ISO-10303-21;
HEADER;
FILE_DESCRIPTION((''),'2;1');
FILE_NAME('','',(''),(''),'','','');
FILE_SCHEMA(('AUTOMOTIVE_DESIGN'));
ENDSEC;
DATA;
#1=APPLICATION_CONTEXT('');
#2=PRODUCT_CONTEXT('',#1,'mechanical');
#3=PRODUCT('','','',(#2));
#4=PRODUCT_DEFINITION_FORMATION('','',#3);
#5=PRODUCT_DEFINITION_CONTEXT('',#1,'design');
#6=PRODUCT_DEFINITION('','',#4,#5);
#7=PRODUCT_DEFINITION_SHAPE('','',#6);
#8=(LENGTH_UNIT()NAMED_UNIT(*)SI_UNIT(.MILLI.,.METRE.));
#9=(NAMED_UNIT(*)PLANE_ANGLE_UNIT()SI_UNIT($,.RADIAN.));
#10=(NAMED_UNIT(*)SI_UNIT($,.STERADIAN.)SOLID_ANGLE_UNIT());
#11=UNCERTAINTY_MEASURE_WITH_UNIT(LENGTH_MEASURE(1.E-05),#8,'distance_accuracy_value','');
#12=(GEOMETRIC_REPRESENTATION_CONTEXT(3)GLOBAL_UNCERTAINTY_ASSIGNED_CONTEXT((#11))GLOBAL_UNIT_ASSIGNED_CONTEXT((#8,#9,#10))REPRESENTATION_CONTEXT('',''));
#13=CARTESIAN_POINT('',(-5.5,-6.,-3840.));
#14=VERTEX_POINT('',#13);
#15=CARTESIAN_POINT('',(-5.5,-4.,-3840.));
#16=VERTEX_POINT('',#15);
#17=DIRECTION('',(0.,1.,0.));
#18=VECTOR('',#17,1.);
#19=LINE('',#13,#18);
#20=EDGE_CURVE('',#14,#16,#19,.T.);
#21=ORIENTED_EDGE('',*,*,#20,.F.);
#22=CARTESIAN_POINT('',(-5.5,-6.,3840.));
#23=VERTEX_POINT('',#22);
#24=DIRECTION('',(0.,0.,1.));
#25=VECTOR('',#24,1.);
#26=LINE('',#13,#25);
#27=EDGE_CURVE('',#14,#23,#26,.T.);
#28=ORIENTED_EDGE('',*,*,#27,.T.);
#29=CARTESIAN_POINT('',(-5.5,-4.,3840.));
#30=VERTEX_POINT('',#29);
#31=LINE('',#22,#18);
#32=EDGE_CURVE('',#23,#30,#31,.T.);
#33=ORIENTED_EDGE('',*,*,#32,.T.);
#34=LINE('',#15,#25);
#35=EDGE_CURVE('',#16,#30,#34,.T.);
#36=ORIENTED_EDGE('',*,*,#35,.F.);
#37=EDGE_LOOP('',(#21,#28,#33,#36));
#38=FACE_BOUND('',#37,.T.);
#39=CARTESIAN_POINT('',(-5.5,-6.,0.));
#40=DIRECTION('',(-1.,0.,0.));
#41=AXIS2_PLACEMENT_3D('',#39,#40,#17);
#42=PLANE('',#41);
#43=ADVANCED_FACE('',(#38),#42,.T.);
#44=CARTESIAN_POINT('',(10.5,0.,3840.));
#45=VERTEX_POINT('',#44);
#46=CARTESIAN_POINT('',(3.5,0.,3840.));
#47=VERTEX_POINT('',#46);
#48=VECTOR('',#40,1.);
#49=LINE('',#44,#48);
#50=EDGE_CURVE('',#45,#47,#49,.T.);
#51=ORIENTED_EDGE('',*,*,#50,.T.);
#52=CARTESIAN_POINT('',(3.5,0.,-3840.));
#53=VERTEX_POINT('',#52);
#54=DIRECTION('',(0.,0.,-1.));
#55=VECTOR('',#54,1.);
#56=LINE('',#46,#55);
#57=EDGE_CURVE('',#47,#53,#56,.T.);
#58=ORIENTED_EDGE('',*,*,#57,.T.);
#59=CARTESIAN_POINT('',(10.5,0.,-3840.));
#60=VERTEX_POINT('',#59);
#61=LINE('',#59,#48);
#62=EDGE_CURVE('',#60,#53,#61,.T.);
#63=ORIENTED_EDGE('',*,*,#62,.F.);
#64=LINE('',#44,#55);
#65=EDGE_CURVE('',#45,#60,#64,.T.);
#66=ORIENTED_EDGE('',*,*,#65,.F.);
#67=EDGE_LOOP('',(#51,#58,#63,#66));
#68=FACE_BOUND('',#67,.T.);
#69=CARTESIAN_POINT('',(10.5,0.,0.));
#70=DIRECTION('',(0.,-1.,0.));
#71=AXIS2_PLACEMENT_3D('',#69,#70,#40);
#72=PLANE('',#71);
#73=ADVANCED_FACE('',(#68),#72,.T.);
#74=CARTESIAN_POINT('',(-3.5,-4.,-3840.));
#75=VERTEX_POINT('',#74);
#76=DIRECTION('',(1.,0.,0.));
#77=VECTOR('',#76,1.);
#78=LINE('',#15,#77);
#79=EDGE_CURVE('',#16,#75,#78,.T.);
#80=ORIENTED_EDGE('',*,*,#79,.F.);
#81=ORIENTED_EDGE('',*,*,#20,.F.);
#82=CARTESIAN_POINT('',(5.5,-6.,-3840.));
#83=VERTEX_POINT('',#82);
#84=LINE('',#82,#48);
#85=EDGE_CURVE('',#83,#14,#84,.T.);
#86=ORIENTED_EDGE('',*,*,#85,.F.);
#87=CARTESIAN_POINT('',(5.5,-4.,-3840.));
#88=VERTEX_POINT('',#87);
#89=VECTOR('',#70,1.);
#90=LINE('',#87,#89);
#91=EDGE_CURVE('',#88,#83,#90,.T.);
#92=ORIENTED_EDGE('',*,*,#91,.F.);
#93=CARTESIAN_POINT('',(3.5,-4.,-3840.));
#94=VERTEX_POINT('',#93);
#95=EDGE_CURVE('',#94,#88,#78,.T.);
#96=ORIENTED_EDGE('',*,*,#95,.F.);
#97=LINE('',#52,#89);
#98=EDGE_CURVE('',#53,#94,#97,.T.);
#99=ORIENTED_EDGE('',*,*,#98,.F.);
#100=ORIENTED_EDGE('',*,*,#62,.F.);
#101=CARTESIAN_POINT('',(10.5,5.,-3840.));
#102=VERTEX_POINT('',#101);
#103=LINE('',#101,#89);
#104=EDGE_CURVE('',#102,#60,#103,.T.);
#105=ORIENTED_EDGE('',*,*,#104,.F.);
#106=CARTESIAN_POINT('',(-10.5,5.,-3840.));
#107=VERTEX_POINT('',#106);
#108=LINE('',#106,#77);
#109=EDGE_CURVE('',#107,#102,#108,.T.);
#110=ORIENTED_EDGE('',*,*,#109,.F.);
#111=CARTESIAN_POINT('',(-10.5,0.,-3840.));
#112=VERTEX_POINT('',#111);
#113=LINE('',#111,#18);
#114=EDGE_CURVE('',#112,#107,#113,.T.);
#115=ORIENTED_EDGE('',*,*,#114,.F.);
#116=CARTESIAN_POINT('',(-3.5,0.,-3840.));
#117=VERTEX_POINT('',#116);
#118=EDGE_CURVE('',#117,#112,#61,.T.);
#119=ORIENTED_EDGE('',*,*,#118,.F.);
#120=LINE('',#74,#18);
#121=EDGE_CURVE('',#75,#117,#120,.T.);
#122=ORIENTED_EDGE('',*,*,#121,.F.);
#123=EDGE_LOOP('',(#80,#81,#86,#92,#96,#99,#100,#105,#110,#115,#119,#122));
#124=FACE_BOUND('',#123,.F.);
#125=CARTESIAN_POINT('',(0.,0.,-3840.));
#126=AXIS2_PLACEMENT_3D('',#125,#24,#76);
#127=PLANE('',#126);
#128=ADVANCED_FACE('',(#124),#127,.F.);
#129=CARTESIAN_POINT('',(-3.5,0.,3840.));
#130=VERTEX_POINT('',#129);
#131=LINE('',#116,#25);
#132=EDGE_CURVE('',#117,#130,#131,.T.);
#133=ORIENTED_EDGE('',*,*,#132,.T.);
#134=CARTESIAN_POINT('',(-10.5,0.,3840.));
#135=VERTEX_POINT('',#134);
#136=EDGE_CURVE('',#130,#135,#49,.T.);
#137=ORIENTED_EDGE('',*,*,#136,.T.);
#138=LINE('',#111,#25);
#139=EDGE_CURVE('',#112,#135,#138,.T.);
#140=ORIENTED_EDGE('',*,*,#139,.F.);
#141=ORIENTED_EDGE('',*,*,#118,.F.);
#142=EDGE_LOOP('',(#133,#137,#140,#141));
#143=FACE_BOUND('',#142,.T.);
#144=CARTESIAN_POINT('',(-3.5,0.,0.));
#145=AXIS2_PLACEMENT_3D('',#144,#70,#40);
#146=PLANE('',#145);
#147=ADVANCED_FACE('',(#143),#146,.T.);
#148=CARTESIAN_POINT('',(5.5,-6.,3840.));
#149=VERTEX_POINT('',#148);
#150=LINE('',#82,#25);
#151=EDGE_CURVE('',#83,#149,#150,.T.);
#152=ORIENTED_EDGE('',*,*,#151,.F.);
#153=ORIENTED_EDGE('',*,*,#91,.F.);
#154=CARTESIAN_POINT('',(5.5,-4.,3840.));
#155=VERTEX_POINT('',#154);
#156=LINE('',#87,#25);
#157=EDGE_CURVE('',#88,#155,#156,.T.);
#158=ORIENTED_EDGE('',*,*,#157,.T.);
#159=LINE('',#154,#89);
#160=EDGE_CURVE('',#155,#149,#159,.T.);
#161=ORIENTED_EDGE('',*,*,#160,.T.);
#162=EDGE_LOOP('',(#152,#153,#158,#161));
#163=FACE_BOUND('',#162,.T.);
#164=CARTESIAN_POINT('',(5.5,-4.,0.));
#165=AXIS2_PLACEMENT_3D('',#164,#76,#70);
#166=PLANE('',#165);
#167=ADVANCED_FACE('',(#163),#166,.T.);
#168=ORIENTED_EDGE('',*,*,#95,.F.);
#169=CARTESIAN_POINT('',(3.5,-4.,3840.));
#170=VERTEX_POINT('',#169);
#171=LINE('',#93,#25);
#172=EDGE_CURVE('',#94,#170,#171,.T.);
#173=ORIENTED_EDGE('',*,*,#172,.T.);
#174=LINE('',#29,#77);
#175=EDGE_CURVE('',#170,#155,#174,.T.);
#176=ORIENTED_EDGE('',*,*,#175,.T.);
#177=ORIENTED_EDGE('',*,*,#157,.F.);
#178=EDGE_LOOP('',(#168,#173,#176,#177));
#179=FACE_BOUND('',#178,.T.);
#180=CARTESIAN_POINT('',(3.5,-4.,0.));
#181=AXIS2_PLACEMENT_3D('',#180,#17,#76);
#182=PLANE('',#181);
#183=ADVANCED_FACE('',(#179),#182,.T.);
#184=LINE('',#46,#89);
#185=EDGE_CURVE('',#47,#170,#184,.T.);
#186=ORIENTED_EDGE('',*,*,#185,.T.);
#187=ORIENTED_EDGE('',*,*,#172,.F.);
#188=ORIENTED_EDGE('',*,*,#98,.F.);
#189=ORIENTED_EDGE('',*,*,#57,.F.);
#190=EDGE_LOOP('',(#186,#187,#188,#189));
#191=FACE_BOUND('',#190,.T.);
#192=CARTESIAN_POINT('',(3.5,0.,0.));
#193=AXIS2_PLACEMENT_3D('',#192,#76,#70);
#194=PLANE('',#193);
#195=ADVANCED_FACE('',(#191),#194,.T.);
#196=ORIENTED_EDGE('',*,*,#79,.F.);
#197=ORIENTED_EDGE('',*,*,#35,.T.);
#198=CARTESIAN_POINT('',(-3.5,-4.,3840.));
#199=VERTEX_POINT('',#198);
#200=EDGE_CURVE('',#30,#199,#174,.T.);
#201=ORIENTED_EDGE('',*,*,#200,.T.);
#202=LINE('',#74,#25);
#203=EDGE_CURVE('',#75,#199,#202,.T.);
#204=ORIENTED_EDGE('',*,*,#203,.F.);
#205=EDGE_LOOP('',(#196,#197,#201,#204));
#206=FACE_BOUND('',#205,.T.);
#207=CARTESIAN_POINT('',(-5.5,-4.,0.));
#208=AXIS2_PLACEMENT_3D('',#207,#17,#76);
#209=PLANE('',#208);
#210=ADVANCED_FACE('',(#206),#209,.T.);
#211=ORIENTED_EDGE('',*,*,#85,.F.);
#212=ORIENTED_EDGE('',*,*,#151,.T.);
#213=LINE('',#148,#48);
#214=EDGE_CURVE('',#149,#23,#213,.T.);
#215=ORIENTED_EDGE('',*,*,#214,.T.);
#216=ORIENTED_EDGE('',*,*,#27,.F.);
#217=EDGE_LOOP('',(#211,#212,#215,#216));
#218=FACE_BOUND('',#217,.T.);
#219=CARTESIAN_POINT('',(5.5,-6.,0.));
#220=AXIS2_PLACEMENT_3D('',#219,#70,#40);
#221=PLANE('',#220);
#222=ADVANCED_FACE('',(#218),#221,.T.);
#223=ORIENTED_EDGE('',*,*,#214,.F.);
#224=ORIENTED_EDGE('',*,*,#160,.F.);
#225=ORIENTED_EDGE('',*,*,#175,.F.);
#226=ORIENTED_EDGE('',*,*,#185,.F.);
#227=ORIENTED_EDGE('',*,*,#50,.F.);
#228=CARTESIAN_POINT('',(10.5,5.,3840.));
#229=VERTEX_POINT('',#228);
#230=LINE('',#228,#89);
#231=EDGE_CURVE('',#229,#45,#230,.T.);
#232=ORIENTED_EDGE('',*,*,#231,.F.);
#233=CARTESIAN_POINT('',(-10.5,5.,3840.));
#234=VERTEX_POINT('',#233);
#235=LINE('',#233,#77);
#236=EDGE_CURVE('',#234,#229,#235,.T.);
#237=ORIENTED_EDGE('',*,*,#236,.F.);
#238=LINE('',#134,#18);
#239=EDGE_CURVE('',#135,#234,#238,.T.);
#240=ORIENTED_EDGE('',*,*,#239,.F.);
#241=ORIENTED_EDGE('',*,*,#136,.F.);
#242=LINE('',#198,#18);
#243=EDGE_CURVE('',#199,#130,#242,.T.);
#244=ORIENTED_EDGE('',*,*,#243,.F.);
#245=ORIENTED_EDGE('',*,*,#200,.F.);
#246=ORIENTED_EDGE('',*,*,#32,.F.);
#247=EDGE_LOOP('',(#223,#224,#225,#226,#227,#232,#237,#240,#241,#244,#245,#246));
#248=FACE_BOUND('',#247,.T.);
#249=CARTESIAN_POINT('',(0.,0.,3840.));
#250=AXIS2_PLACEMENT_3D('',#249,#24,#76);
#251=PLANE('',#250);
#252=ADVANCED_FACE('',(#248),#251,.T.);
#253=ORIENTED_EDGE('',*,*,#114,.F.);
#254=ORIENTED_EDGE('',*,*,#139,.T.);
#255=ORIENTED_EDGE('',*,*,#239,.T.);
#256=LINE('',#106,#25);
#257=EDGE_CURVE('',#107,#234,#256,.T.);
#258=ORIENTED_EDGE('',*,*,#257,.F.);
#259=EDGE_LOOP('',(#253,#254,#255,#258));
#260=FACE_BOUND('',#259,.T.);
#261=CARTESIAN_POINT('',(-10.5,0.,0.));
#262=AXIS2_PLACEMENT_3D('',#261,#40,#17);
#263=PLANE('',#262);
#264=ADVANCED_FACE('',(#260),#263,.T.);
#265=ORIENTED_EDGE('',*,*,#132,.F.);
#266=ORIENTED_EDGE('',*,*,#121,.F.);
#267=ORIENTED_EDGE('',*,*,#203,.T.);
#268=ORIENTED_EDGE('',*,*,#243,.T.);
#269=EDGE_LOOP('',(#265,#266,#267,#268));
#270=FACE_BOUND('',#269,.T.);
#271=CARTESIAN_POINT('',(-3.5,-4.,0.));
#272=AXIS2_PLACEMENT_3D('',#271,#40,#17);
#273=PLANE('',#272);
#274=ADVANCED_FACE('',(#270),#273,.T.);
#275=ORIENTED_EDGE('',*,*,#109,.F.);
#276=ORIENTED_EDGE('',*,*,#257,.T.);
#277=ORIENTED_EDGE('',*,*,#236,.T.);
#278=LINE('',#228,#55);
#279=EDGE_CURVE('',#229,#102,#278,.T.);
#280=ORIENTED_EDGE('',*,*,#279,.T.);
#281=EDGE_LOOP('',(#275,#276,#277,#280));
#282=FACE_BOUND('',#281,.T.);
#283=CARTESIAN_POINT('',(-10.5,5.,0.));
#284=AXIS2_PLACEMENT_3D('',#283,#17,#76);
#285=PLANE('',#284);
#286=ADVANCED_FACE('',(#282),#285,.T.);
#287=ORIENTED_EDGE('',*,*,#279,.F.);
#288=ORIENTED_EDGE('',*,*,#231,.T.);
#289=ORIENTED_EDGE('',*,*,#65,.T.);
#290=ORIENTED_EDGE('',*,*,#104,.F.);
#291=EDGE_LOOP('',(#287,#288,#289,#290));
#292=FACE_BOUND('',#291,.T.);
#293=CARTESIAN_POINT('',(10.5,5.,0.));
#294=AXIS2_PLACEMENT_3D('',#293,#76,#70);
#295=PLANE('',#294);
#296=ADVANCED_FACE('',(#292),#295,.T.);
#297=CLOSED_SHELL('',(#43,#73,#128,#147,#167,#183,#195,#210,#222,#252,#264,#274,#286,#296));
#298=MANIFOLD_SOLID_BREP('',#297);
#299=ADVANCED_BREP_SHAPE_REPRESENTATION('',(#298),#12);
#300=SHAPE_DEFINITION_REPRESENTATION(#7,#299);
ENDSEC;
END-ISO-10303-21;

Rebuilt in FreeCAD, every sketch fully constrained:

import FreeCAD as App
import Part
import Sketcher
Q = App.Units.Quantity


def add_polygon(sketch, points):
    """Adds a closed chain of lines whose ends are joined by coincident constraints."""
    first, n = sketch.GeometryCount, len(points)
    for a, b in zip(points, points[1:] + points[:1]):
        sketch.addGeometry(Part.LineSegment(App.Vector(*a, 0), App.Vector(*b, 0)), False)
    for i in range(n):
        sketch.addConstraint(Sketcher.Constraint("Coincident", first + i, 2, first + (i + 1) % n, 1))

doc = App.newDocument("Part")
body = doc.addObject("PartDesign::Body", "Body")

sketch1 = body.newObject("Sketcher::SketchObject", "Sketch")
sketch1.AttachmentSupport = (doc.getObject("XY_Plane"), [""])
sketch1.MapMode = "FlatFace"
add_polygon(sketch1, [(10.5, 5), (-10.5, 5), (-10.5, 0), (-3.5, 0), (-3.5, -4), (-5.5, -4), (-5.5, -6), (5.5, -6), (5.5, -4), (3.5, -4), (3.5, 0), (10.5, 0)])
sketch1.addConstraint([
    Sketcher.Constraint("Horizontal", 0),
    Sketcher.Constraint("Vertical", 1),
    Sketcher.Constraint("Horizontal", 2),
    Sketcher.Constraint("Vertical", 3),
    Sketcher.Constraint("Horizontal", 4),
    Sketcher.Constraint("Vertical", 5),
    Sketcher.Constraint("Horizontal", 6),
    Sketcher.Constraint("Vertical", 7),
    Sketcher.Constraint("Horizontal", 8),
    Sketcher.Constraint("Vertical", 9),
    Sketcher.Constraint("Horizontal", 10),
    Sketcher.Constraint("Vertical", 11),
    Sketcher.Constraint("Symmetric", 2, 2, 9, 2, -1, 1),
    Sketcher.Constraint("Symmetric", 4, 2, 7, 2, -2),
    Sketcher.Constraint("Symmetric", 1, 2, 10, 2, -2),
    Sketcher.Constraint("Equal", 8, 5),
    Sketcher.Constraint("DistanceX", 0, 2, 0, 1, Q("21 mm")),
    Sketcher.Constraint("DistanceX", 2, 1, 2, 2, Q("7 mm")),
    Sketcher.Constraint("DistanceX", 4, 2, 4, 1, Q("2 mm")),
    Sketcher.Constraint("DistanceY", 1, 2, 1, 1, Q("5 mm")),
    Sketcher.Constraint("DistanceY", 3, 2, 3, 1, Q("4 mm")),
])
pad1 = body.newObject("PartDesign::Pad", "Pad")
pad1.Profile = sketch1
pad1.Length = 7680
pad1.Midplane = True

doc.recompute()
